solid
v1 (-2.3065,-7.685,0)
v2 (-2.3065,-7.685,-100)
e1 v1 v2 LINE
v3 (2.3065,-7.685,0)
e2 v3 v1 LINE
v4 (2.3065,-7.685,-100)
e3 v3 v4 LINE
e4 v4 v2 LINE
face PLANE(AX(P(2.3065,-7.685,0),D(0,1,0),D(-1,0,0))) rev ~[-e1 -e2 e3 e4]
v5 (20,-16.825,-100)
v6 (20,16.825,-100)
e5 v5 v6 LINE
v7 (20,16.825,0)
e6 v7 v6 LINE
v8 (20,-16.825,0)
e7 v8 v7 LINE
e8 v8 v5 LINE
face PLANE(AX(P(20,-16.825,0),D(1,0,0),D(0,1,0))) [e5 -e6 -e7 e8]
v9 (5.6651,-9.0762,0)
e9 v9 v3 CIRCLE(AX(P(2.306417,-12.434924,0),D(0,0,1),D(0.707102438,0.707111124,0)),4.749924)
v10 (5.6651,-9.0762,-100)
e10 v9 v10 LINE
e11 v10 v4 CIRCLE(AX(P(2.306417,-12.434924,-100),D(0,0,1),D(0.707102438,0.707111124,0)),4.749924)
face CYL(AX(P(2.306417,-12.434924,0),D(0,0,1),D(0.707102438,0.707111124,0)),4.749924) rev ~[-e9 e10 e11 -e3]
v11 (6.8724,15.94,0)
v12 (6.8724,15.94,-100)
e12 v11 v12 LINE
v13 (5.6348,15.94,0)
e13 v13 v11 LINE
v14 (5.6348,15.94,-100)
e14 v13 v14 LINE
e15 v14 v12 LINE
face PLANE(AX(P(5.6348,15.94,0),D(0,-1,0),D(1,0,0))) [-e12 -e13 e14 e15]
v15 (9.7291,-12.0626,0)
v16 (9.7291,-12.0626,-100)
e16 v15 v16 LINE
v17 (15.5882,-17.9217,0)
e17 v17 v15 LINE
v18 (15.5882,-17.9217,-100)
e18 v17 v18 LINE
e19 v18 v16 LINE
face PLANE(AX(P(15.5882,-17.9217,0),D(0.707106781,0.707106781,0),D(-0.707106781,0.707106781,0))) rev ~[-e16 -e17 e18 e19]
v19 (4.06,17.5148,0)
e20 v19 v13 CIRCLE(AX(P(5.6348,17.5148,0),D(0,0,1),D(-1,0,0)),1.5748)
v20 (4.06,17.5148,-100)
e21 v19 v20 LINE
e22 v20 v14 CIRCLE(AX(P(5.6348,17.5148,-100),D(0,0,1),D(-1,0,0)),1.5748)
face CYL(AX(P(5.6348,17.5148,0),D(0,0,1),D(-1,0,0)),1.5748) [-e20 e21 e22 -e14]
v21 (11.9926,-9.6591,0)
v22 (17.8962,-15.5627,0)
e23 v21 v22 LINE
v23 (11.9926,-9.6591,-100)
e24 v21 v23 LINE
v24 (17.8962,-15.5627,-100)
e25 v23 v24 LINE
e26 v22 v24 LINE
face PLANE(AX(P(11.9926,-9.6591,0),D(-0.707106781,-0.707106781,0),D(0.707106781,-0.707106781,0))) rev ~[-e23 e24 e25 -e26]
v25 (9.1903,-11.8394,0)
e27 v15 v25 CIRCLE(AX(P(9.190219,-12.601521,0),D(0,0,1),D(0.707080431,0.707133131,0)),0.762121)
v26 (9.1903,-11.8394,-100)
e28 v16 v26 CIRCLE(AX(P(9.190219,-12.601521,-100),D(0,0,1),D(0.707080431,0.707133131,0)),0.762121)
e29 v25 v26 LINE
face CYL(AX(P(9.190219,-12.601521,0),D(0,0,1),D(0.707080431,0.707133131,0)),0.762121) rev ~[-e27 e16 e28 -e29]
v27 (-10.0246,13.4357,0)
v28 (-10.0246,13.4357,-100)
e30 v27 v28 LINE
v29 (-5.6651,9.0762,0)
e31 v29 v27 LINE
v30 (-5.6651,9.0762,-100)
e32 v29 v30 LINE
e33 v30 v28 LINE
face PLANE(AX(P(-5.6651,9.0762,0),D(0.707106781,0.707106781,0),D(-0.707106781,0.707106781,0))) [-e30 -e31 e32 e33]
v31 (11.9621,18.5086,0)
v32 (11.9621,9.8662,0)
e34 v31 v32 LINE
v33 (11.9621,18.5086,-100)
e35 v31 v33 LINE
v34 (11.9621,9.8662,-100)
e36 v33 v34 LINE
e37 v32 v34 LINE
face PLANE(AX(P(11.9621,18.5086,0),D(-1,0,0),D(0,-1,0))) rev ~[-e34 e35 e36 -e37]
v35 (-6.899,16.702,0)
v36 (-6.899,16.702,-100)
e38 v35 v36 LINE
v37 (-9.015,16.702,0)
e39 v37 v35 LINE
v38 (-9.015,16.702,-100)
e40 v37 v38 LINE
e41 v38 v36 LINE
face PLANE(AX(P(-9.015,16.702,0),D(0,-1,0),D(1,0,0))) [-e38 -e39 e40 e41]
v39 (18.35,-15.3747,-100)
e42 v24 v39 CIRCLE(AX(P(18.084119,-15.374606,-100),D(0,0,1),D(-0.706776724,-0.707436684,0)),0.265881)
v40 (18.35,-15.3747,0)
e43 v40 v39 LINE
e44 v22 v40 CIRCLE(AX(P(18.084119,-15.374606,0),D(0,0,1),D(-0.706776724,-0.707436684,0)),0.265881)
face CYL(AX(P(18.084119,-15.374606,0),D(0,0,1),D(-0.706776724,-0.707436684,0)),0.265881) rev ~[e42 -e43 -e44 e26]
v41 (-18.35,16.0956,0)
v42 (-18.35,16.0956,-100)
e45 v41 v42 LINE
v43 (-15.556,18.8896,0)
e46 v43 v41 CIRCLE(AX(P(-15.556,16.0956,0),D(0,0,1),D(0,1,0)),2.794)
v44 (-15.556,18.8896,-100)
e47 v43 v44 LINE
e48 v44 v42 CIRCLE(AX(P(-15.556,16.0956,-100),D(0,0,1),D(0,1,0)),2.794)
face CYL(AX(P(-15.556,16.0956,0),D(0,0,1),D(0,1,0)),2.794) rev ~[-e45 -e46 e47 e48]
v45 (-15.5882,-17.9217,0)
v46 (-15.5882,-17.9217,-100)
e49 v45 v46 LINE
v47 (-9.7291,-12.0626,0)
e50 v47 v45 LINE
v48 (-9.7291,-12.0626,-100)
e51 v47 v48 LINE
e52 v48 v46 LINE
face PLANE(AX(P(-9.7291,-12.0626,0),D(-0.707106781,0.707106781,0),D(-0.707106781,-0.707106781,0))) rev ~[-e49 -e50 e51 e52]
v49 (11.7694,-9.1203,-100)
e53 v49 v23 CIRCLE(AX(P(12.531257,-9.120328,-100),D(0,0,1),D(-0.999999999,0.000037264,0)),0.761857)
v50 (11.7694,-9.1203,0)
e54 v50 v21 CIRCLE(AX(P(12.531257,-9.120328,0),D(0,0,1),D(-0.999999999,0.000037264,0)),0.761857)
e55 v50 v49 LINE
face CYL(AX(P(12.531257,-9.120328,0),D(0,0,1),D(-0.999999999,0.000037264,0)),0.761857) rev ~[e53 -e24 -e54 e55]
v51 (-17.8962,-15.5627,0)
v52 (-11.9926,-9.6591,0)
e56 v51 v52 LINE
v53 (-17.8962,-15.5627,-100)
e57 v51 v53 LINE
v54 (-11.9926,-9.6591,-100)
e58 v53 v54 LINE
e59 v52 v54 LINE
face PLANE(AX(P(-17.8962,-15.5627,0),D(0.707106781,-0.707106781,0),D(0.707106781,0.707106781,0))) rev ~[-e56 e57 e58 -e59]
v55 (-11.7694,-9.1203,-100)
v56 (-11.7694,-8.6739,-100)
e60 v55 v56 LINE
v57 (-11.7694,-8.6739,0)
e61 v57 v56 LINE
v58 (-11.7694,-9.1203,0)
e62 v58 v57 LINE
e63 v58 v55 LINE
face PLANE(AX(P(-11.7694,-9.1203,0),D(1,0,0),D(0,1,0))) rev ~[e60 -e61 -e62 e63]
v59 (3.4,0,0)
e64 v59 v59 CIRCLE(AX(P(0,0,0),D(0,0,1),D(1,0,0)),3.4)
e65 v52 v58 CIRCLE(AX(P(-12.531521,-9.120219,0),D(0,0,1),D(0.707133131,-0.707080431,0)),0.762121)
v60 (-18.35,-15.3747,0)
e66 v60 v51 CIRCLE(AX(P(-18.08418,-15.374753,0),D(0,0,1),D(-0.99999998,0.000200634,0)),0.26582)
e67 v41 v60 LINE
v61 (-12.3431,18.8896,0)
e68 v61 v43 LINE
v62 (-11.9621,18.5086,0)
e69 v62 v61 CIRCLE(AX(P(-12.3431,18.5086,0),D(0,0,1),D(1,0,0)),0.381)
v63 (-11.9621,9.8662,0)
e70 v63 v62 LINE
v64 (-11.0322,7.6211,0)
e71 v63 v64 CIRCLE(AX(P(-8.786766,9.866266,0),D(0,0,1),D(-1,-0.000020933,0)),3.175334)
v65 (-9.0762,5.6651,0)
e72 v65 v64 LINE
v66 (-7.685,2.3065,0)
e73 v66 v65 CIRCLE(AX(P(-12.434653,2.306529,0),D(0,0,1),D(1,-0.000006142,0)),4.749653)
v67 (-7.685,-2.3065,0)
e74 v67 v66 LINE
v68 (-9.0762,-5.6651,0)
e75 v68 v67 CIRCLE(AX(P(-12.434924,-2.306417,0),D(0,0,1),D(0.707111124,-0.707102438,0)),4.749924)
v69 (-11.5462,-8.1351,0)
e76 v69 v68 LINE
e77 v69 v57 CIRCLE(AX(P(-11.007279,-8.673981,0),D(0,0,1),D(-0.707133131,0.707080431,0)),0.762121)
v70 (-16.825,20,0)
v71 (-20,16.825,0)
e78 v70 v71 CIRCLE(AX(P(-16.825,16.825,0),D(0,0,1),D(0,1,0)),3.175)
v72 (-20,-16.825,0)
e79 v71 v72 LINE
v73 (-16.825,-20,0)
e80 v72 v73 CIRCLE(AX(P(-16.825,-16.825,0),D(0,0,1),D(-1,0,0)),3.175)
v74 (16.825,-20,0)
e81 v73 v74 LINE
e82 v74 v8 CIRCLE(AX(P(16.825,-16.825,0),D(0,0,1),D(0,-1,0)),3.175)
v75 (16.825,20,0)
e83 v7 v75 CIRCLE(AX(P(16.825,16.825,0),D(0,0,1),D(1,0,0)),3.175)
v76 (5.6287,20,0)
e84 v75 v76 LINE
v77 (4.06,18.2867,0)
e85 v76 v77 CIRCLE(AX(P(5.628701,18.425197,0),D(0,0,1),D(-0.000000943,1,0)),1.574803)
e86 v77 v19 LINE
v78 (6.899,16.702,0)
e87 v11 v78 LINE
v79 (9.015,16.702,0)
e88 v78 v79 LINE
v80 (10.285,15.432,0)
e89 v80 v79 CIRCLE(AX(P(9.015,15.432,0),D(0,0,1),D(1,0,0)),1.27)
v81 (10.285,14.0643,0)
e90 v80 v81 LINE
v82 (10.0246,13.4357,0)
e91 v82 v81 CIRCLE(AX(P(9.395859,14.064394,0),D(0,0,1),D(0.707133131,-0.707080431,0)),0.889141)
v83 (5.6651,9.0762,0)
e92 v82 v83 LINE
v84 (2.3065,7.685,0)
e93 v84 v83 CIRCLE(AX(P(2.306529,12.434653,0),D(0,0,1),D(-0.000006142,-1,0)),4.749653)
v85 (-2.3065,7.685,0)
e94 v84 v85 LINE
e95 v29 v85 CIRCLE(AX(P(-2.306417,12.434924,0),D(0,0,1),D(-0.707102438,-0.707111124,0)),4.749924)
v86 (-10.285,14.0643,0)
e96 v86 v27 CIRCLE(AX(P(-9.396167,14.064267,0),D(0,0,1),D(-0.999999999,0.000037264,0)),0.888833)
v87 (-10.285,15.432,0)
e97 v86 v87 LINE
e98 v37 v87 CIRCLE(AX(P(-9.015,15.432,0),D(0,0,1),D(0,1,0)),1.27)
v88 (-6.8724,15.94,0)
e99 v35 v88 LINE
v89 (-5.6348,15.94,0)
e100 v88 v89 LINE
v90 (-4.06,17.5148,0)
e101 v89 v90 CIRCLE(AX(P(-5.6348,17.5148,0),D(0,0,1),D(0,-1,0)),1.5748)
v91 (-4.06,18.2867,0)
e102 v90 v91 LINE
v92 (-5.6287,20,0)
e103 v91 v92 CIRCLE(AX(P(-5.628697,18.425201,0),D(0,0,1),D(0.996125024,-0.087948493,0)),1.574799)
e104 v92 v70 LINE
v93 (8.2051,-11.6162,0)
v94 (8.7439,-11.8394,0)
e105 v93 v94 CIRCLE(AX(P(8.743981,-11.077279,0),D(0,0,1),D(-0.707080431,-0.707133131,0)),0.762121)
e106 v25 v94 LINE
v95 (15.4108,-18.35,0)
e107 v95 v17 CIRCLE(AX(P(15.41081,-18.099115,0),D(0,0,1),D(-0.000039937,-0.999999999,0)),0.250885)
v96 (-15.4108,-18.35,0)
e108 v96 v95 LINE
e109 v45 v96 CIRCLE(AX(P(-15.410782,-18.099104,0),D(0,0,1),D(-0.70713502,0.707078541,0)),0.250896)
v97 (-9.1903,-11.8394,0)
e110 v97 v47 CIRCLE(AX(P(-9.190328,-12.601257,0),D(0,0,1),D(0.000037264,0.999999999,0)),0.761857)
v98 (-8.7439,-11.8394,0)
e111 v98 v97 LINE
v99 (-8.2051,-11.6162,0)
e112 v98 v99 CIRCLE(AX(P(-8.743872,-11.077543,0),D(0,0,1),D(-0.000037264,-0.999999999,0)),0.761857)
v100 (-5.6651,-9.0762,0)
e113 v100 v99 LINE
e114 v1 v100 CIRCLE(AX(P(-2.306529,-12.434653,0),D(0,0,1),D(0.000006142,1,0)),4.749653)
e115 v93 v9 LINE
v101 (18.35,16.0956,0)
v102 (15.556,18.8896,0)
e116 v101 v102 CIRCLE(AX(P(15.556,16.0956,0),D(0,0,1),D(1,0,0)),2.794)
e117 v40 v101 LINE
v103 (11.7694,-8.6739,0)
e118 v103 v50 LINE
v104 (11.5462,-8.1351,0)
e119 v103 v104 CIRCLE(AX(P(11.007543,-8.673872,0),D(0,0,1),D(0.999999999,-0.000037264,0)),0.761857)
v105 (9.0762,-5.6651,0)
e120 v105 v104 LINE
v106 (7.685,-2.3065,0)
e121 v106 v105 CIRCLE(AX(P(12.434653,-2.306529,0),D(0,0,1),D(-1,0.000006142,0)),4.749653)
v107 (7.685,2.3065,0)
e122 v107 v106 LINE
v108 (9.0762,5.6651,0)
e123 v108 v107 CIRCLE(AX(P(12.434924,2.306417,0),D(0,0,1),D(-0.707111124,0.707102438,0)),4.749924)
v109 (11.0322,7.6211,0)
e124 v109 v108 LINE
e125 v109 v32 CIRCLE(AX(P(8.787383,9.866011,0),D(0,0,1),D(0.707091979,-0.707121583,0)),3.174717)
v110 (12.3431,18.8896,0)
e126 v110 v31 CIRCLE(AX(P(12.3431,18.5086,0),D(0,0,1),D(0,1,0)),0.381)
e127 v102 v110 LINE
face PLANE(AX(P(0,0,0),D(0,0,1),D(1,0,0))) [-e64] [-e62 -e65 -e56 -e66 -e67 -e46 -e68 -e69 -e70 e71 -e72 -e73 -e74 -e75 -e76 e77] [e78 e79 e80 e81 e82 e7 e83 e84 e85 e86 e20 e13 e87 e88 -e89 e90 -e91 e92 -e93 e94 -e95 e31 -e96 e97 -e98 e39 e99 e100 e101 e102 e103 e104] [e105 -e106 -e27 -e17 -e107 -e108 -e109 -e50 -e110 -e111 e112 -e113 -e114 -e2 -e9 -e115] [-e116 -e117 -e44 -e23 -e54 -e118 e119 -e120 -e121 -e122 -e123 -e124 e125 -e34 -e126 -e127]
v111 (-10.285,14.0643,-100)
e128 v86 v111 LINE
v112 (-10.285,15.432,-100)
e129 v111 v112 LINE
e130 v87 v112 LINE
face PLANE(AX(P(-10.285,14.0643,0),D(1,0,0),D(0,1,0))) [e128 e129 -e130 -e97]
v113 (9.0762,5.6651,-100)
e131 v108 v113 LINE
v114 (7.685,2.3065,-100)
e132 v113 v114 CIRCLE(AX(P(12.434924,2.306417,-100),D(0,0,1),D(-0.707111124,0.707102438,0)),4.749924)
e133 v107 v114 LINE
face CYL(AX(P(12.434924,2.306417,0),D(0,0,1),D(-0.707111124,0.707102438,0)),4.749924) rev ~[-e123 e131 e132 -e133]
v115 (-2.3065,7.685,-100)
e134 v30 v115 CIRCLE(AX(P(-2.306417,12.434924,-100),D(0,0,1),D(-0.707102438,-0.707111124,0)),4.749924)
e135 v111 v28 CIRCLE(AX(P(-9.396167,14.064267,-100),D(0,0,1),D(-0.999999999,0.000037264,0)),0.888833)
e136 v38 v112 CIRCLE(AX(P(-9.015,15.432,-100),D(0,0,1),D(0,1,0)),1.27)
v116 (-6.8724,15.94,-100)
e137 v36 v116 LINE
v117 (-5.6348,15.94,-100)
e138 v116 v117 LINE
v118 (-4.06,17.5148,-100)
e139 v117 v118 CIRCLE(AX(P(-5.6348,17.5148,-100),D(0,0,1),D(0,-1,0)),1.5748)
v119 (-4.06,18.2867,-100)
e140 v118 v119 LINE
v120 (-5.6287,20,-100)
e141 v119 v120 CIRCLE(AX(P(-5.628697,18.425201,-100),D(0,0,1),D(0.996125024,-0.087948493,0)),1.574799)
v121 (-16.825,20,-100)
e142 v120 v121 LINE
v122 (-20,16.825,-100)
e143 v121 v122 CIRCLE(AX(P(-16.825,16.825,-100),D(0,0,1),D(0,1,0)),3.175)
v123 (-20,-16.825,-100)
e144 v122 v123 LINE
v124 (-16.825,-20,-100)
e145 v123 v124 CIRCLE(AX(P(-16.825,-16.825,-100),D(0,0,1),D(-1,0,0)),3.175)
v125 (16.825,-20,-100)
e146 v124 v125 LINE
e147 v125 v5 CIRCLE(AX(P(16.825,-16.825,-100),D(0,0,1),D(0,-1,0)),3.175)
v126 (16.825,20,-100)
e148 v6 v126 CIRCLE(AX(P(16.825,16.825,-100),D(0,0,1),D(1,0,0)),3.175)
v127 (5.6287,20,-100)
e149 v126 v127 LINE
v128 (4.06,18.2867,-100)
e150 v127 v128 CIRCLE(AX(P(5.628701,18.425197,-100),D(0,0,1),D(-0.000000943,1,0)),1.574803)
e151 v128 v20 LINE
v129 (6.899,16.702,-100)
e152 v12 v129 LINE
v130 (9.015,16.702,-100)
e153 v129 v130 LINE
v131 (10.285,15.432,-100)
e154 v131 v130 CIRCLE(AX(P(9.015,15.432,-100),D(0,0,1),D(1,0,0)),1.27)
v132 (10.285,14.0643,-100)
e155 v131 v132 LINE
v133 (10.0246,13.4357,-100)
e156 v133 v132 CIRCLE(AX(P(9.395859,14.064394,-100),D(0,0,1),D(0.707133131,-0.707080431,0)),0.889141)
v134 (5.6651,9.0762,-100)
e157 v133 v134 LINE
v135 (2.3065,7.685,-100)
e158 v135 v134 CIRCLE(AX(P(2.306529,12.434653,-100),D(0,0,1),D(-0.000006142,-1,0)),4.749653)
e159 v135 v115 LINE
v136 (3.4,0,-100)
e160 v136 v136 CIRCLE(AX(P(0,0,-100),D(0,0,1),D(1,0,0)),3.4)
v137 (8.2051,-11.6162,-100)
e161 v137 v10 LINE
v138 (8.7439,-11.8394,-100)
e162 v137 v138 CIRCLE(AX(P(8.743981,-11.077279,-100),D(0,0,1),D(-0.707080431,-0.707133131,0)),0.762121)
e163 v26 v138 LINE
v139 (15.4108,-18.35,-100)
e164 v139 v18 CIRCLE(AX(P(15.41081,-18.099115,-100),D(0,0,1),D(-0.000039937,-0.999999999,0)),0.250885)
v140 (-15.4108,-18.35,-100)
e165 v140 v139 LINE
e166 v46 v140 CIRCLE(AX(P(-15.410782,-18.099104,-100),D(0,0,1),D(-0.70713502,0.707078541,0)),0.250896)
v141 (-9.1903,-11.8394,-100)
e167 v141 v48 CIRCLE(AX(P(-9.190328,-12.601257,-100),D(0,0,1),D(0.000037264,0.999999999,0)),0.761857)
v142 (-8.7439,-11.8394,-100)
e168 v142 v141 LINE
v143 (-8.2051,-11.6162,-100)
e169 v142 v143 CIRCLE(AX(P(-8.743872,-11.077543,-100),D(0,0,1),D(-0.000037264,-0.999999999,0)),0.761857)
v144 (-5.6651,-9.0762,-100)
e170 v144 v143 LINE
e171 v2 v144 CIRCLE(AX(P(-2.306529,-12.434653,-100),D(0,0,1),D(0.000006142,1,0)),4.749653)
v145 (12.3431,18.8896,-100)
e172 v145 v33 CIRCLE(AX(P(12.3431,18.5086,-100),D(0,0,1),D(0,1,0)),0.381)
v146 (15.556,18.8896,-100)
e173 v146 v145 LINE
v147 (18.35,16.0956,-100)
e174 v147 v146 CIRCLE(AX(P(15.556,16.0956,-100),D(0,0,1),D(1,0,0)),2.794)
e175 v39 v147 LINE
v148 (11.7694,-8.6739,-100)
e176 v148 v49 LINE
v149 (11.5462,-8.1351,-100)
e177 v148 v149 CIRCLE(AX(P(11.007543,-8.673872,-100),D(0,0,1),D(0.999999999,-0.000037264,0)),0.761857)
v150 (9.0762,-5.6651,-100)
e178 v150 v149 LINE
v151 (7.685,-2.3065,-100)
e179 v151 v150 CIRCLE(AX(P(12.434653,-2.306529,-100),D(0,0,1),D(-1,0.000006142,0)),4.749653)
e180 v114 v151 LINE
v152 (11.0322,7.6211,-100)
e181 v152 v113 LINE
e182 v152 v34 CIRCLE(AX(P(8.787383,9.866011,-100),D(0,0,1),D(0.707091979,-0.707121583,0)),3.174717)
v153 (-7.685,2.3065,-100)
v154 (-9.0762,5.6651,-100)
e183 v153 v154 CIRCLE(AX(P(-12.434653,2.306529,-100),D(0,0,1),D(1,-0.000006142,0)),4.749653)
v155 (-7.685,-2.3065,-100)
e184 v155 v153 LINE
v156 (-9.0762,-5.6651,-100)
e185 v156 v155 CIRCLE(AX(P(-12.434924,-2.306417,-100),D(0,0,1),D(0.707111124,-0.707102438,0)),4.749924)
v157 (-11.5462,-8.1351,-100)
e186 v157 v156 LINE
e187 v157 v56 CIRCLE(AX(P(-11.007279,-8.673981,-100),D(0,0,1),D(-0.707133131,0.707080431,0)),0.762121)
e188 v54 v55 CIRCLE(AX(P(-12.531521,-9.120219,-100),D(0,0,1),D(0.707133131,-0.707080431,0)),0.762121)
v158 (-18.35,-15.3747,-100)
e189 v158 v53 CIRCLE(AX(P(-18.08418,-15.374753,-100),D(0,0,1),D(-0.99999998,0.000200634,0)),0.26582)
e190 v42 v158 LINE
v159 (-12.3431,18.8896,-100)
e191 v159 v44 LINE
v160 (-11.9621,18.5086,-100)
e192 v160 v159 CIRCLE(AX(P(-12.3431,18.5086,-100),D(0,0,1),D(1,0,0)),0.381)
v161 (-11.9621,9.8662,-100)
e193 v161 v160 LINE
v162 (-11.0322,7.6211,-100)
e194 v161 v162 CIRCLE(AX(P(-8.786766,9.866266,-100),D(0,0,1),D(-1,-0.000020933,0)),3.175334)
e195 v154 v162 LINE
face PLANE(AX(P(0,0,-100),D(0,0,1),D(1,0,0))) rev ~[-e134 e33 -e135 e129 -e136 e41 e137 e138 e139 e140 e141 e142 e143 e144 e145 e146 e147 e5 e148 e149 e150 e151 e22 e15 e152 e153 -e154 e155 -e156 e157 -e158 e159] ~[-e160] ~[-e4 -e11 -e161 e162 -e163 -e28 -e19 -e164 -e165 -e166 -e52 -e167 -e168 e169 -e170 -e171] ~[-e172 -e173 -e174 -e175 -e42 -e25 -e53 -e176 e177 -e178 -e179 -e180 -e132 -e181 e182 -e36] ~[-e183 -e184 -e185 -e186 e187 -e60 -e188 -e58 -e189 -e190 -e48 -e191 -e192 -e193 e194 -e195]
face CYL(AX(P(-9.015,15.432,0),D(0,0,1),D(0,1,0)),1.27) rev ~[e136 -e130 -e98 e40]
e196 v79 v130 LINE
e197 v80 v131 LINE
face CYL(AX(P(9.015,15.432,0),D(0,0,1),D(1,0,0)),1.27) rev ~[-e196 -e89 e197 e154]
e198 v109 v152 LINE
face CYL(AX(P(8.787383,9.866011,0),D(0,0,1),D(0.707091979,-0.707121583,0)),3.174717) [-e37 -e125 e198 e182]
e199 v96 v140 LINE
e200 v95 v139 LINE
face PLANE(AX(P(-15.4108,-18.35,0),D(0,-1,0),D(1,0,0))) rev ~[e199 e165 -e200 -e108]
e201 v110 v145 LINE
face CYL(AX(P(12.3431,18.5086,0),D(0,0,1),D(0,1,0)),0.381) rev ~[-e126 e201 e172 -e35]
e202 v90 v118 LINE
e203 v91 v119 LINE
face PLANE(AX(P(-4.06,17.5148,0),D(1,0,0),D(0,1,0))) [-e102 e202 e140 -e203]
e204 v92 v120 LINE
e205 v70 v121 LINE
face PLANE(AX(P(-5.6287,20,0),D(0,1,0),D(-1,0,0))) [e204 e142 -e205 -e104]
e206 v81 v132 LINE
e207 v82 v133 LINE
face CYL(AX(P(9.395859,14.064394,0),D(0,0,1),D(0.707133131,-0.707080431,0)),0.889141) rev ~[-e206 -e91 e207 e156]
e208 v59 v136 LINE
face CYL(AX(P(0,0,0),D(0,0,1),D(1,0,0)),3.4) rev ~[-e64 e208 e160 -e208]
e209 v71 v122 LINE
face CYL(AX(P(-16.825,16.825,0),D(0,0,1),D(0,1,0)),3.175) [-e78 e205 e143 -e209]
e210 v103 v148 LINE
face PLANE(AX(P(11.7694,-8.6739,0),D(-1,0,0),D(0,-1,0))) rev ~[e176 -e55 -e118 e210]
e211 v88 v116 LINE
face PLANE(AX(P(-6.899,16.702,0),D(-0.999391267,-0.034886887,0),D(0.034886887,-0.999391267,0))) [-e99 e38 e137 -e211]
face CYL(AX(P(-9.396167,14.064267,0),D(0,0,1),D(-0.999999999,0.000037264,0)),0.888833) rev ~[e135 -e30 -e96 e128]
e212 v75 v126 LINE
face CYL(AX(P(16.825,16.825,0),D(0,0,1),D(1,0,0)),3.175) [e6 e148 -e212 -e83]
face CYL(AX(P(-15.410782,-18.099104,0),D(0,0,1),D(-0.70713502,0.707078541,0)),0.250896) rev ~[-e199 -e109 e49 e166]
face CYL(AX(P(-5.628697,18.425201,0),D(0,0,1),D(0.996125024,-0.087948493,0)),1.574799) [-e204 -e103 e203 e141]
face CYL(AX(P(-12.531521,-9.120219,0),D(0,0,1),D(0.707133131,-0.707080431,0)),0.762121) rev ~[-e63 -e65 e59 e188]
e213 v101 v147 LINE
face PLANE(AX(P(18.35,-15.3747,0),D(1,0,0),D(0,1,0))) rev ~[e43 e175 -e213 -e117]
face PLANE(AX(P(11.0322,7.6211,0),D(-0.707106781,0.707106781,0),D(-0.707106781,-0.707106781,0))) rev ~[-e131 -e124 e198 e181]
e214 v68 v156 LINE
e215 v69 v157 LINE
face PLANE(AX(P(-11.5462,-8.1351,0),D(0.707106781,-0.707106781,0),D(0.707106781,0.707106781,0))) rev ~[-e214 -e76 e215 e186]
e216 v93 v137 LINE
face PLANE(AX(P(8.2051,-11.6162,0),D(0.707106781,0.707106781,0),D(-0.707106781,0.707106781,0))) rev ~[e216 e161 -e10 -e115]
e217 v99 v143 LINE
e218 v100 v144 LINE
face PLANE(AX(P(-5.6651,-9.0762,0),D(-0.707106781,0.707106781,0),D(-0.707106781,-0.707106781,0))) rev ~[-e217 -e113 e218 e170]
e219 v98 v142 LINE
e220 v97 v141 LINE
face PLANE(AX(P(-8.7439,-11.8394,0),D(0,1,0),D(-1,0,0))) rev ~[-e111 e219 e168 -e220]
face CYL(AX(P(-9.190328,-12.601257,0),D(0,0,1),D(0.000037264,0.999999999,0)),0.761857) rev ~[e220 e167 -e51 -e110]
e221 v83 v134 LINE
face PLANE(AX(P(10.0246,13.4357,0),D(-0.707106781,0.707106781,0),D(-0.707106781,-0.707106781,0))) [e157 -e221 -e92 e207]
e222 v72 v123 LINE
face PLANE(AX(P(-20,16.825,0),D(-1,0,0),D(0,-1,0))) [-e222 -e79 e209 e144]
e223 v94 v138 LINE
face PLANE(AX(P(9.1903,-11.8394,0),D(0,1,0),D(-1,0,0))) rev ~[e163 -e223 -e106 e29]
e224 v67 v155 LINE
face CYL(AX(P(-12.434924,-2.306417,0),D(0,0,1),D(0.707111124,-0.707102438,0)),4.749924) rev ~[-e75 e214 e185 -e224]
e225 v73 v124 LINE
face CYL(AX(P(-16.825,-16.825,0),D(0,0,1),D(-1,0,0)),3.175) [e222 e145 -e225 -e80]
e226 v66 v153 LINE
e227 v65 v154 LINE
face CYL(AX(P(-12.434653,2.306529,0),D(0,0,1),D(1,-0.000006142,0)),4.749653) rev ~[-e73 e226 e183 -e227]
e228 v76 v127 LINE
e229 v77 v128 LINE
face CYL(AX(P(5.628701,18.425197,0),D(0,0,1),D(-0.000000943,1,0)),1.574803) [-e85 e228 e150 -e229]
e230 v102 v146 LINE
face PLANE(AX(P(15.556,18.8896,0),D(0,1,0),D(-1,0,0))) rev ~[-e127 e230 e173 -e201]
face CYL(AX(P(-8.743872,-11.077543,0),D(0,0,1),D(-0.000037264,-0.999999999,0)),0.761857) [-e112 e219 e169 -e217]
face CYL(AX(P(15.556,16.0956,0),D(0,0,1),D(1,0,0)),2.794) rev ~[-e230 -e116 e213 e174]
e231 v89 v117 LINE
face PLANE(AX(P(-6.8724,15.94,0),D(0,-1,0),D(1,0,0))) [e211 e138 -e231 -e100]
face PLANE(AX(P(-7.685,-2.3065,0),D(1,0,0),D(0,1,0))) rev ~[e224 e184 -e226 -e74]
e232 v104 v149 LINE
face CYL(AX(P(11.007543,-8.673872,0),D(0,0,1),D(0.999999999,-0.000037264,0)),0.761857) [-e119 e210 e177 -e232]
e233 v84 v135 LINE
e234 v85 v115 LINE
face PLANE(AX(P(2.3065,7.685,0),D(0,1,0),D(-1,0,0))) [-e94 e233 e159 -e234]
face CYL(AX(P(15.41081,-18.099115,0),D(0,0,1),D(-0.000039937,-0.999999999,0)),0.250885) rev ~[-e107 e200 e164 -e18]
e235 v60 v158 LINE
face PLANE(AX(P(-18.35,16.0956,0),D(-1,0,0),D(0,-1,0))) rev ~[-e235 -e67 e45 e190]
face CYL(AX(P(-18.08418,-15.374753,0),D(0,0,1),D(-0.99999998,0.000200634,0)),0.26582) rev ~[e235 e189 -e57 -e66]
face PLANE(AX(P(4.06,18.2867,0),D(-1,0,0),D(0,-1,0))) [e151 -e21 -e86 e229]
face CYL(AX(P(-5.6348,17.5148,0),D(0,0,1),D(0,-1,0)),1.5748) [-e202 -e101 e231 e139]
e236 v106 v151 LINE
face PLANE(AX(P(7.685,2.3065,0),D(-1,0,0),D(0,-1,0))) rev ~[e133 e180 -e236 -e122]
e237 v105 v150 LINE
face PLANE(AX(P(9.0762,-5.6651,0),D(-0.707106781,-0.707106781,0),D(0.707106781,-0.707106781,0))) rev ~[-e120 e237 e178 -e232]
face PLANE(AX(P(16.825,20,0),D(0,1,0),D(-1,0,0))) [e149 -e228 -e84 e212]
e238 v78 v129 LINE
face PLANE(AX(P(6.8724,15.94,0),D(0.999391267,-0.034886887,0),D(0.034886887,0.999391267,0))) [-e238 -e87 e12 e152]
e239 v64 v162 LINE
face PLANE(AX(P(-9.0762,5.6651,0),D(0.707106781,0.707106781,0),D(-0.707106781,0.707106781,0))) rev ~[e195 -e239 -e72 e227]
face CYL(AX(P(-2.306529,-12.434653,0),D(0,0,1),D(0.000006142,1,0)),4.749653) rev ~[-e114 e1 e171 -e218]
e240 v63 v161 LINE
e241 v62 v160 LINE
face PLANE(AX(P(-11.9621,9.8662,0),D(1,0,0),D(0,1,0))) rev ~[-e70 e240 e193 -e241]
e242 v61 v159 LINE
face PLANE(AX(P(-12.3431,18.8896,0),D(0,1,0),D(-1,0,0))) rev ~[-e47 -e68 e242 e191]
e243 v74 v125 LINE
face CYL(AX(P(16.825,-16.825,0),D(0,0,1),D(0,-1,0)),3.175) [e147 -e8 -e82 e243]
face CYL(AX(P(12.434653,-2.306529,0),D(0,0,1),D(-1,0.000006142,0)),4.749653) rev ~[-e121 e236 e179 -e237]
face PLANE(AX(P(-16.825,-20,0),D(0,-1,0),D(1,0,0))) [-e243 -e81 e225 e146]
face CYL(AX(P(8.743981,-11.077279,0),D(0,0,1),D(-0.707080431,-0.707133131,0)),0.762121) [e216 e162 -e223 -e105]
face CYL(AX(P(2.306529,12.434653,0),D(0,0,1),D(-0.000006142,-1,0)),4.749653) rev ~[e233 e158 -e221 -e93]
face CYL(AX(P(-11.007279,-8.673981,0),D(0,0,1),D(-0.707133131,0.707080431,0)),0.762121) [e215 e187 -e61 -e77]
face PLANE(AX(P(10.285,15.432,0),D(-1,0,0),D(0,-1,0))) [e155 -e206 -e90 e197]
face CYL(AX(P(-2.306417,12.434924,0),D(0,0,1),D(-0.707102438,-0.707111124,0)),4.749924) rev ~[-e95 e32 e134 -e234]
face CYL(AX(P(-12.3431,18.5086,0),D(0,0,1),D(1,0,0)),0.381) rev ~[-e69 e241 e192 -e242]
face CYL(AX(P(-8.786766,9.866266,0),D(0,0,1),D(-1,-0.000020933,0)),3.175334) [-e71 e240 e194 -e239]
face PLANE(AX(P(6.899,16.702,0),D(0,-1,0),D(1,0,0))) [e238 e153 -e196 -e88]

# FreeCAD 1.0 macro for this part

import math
import FreeCAD as App
import Part
import Sketcher
Q = App.Units.Quantity

doc = App.newDocument("Part")
body = doc.addObject("PartDesign::Body", "Body")

# Sketch on XY plane
sketch1 = body.newObject("Sketcher::SketchObject", "Sketch")
sketch1.AttachmentSupport = (doc.getObject("XY_Plane"), [""])
sketch1.MapMode = "FlatFace"
sketch1.addGeometry([
    Part.LineSegment(App.Vector(20, -16.825, 0), App.Vector(20, 16.825, 0)),  # 0
    Part.ArcOfCircle(Part.Circle(App.Vector(16.825, 16.825, 0), App.Vector(0, 0, 1), 3.175), math.radians(0), math.radians(90)),  # 1
    Part.LineSegment(App.Vector(16.825, 20, 0), App.Vector(5.6287, 20, 0)),  # 2
    Part.ArcOfCircle(Part.Circle(App.Vector(5.6287, 18.4252, 0), App.Vector(0, 0, 1), 1.5748), math.radians(90), math.radians(185.045542)),  # 3
    Part.LineSegment(App.Vector(4.06, 18.2867, 0), App.Vector(4.06, 17.5148, 0)),  # 4
    Part.ArcOfCircle(Part.Circle(App.Vector(5.6348, 17.5148, 0), App.Vector(0, 0, 1), 1.5748), math.radians(180), math.radians(270)),  # 5
    Part.LineSegment(App.Vector(5.6348, 15.94, 0), App.Vector(6.8724, 15.94, 0)),  # 6
    Part.LineSegment(App.Vector(6.8724, 15.94, 0), App.Vector(6.899, 16.702, 0)),  # 7
    Part.LineSegment(App.Vector(6.899, 16.702, 0), App.Vector(9.015, 16.702, 0)),  # 8
    Part.ArcOfCircle(Part.Circle(App.Vector(9.015, 15.432, 0), App.Vector(0, 0, 1), 1.27), math.radians(0), math.radians(90)),  # 9
    Part.LineSegment(App.Vector(10.285, 15.432, 0), App.Vector(10.285, 14.0643, 0)),  # 10
    Part.ArcOfCircle(Part.Circle(App.Vector(9.396, 14.0643, 0), App.Vector(0, 0, 1), 0.888975), math.radians(-45), math.radians(0)),  # 11
    Part.LineSegment(App.Vector(10.0246, 13.4357, 0), App.Vector(5.6651, 9.0762, 0)),  # 12
    Part.ArcOfCircle(Part.Circle(App.Vector(2.3065, 12.4348, 0), App.Vector(0, 0, 1), 4.7498), math.radians(-90), math.radians(-45)),  # 13
    Part.LineSegment(App.Vector(2.3065, 7.685, 0), App.Vector(-2.3065, 7.685, 0)),  # 14
    Part.ArcOfCircle(Part.Circle(App.Vector(-2.3065, 12.4348, 0), App.Vector(0, 0, 1), 4.749778), math.radians(-135), math.radians(-90)),  # 15
    Part.LineSegment(App.Vector(-5.6651, 9.0762, 0), App.Vector(-10.0246, 13.4357, 0)),  # 16
    Part.ArcOfCircle(Part.Circle(App.Vector(-9.396, 14.0643, 0), App.Vector(0, 0, 1), 0.889), math.radians(180), math.radians(225)),  # 17
    Part.LineSegment(App.Vector(-10.285, 14.0643, 0), App.Vector(-10.285, 15.432, 0)),  # 18
    Part.ArcOfCircle(Part.Circle(App.Vector(-9.015, 15.432, 0), App.Vector(0, 0, 1), 1.27), math.radians(90), math.radians(180)),  # 19
    Part.LineSegment(App.Vector(-9.015, 16.702, 0), App.Vector(-6.899, 16.702, 0)),  # 20
    Part.LineSegment(App.Vector(-6.899, 16.702, 0), App.Vector(-6.8724, 15.94, 0)),  # 21
    Part.LineSegment(App.Vector(-6.8724, 15.94, 0), App.Vector(-5.6348, 15.94, 0)),  # 22
    Part.ArcOfCircle(Part.Circle(App.Vector(-5.6348, 17.5148, 0), App.Vector(0, 0, 1), 1.5748), math.radians(-90), math.radians(0)),  # 23
    Part.LineSegment(App.Vector(-4.06, 17.5148, 0), App.Vector(-4.06, 18.2867, 0)),  # 24
    Part.ArcOfCircle(Part.Circle(App.Vector(-5.6287, 18.4252, 0), App.Vector(0, 0, 1), 1.574802), math.radians(-5.045542), math.radians(90)),  # 25
    Part.LineSegment(App.Vector(-5.6287, 20, 0), App.Vector(-16.825, 20, 0)),  # 26
    Part.ArcOfCircle(Part.Circle(App.Vector(-16.825, 16.825, 0), App.Vector(0, 0, 1), 3.175), math.radians(90), math.radians(180)),  # 27
    Part.LineSegment(App.Vector(-20, 16.825, 0), App.Vector(-20, -16.825, 0)),  # 28
    Part.ArcOfCircle(Part.Circle(App.Vector(-16.825, -16.825, 0), App.Vector(0, 0, 1), 3.175), math.radians(180), math.radians(270)),  # 29
    Part.LineSegment(App.Vector(-16.825, -20, 0), App.Vector(16.825, -20, 0)),  # 30
    Part.ArcOfCircle(Part.Circle(App.Vector(16.825, -16.825, 0), App.Vector(0, 0, 1), 3.175), math.radians(-90), math.radians(0)),  # 31
    Part.ArcOfCircle(Part.Circle(App.Vector(15.4108, -18.0991, 0), App.Vector(0, 0, 1), 0.2509), math.radians(-90), math.radians(45)),  # 32
    Part.LineSegment(App.Vector(15.4108, -18.35, 0), App.Vector(-15.4108, -18.35, 0)),  # 33
    Part.ArcOfCircle(Part.Circle(App.Vector(-15.4108, -18.0991, 0), App.Vector(0, 0, 1), 0.250881), math.radians(135), math.radians(270)),  # 34
    Part.LineSegment(App.Vector(-15.5882, -17.9217, 0), App.Vector(-9.7291, -12.0626, 0)),  # 35
    Part.ArcOfCircle(Part.Circle(App.Vector(-9.1903, -12.6014, 0), App.Vector(0, 0, 1), 0.762), math.radians(90), math.radians(135)),  # 36
    Part.LineSegment(App.Vector(-9.1903, -11.8394, 0), App.Vector(-8.7439, -11.8394, 0)),  # 37
    Part.ArcOfCircle(Part.Circle(App.Vector(-8.7439, -11.0774, 0), App.Vector(0, 0, 1), 0.762), math.radians(-90), math.radians(-45)),  # 38
    Part.LineSegment(App.Vector(-8.2051, -11.6162, 0), App.Vector(-5.6651, -9.0762, 0)),  # 39
    Part.ArcOfCircle(Part.Circle(App.Vector(-2.3065, -12.4348, 0), App.Vector(0, 0, 1), 4.7498), math.radians(90), math.radians(135)),  # 40
    Part.LineSegment(App.Vector(-2.3065, -7.685, 0), App.Vector(2.3065, -7.685, 0)),  # 41
    Part.ArcOfCircle(Part.Circle(App.Vector(2.3065, -12.4348, 0), App.Vector(0, 0, 1), 4.749778), math.radians(45), math.radians(90)),  # 42
    Part.LineSegment(App.Vector(5.6651, -9.0762, 0), App.Vector(8.2051, -11.6162, 0)),  # 43
    Part.ArcOfCircle(Part.Circle(App.Vector(8.7439, -11.0774, 0), App.Vector(0, 0, 1), 0.761978), math.radians(-135), math.radians(-90)),  # 44
    Part.LineSegment(App.Vector(8.7439, -11.8394, 0), App.Vector(9.1903, -11.8394, 0)),  # 45
    Part.ArcOfCircle(Part.Circle(App.Vector(9.1903, -12.6014, 0), App.Vector(0, 0, 1), 0.761978), math.radians(45), math.radians(90)),  # 46
    Part.LineSegment(App.Vector(9.7291, -12.0626, 0), App.Vector(15.5882, -17.9217, 0)),  # 47
    Part.Circle(App.Vector(0, 0, 0), App.Vector(0, 0, 1), 3.4),  # 48
    Part.ArcOfCircle(Part.Circle(App.Vector(-12.4348, -2.3065, 0), App.Vector(0, 0, 1), 4.749778), math.radians(-45), math.radians(0)),  # 49
    Part.LineSegment(App.Vector(-9.0762, -5.6651, 0), App.Vector(-11.5462, -8.1351, 0)),  # 50
    Part.ArcOfCircle(Part.Circle(App.Vector(-11.0074, -8.6739, 0), App.Vector(0, 0, 1), 0.761978), math.radians(135), math.radians(180)),  # 51
    Part.LineSegment(App.Vector(-11.7694, -8.6739, 0), App.Vector(-11.7694, -9.1203, 0)),  # 52
    Part.ArcOfCircle(Part.Circle(App.Vector(-12.5314, -9.1203, 0), App.Vector(0, 0, 1), 0.761978), math.radians(-45), math.radians(0)),  # 53
    Part.LineSegment(App.Vector(-11.9926, -9.6591, 0), App.Vector(-17.8962, -15.5627, 0)),  # 54
    Part.ArcOfCircle(Part.Circle(App.Vector(-18.0841, -15.3747, 0), App.Vector(0, 0, 1), 0.2659), math.radians(180), math.radians(314.984758)),  # 55
    Part.LineSegment(App.Vector(-18.35, -15.3747, 0), App.Vector(-18.35, 16.0956, 0)),  # 56
    Part.ArcOfCircle(Part.Circle(App.Vector(-15.556, 16.0956, 0), App.Vector(0, 0, 1), 2.794), math.radians(90), math.radians(180)),  # 57
    Part.LineSegment(App.Vector(-15.556, 18.8896, 0), App.Vector(-12.3431, 18.8896, 0)),  # 58
    Part.ArcOfCircle(Part.Circle(App.Vector(-12.3431, 18.5086, 0), App.Vector(0, 0, 1), 0.381), math.radians(0), math.radians(90)),  # 59
    Part.LineSegment(App.Vector(-11.9621, 18.5086, 0), App.Vector(-11.9621, 9.8662, 0)),  # 60
    Part.ArcOfCircle(Part.Circle(App.Vector(-8.7871, 9.8662, 0), App.Vector(0, 0, 1), 3.175), math.radians(180), math.radians(225)),  # 61
    Part.LineSegment(App.Vector(-11.0322, 7.6211, 0), App.Vector(-9.0762, 5.6651, 0)),  # 62
    Part.ArcOfCircle(Part.Circle(App.Vector(-12.4348, 2.3065, 0), App.Vector(0, 0, 1), 4.7498), math.radians(0), math.radians(45)),  # 63
    Part.LineSegment(App.Vector(-7.685, 2.3065, 0), App.Vector(-7.685, -2.3065, 0)),  # 64
    Part.LineSegment(App.Vector(11.7694, -9.1203, 0), App.Vector(11.7694, -8.6739, 0)),  # 65
    Part.ArcOfCircle(Part.Circle(App.Vector(11.0074, -8.6739, 0), App.Vector(0, 0, 1), 0.762), math.radians(0), math.radians(45)),  # 66
    Part.LineSegment(App.Vector(11.5462, -8.1351, 0), App.Vector(9.0762, -5.6651, 0)),  # 67
    Part.ArcOfCircle(Part.Circle(App.Vector(12.4348, -2.3065, 0), App.Vector(0, 0, 1), 4.7498), math.radians(180), math.radians(225)),  # 68
    Part.LineSegment(App.Vector(7.685, -2.3065, 0), App.Vector(7.685, 2.3065, 0)),  # 69
    Part.ArcOfCircle(Part.Circle(App.Vector(12.4348, 2.3065, 0), App.Vector(0, 0, 1), 4.749778), math.radians(135), math.radians(180)),  # 70
    Part.LineSegment(App.Vector(9.0762, 5.6651, 0), App.Vector(11.0322, 7.6211, 0)),  # 71
    Part.ArcOfCircle(Part.Circle(App.Vector(8.7871, 9.8662, 0), App.Vector(0, 0, 1), 3.175051), math.radians(-45), math.radians(0)),  # 72
    Part.LineSegment(App.Vector(11.9621, 9.8662, 0), App.Vector(11.9621, 18.5086, 0)),  # 73
    Part.ArcOfCircle(Part.Circle(App.Vector(12.3431, 18.5086, 0), App.Vector(0, 0, 1), 0.381), math.radians(90), math.radians(180)),  # 74
    Part.LineSegment(App.Vector(12.3431, 18.8896, 0), App.Vector(15.556, 18.8896, 0)),  # 75
    Part.ArcOfCircle(Part.Circle(App.Vector(15.556, 16.0956, 0), App.Vector(0, 0, 1), 2.794), math.radians(0), math.radians(90)),  # 76
    Part.LineSegment(App.Vector(18.35, 16.0956, 0), App.Vector(18.35, -15.3747, 0)),  # 77
    Part.ArcOfCircle(Part.Circle(App.Vector(18.0841, -15.3747, 0), App.Vector(0, 0, 1), 0.265801), math.radians(-134.984758), math.radians(0)),  # 78
    Part.LineSegment(App.Vector(17.8962, -15.5627, 0), App.Vector(11.9926, -9.6591, 0)),  # 79
    Part.ArcOfCircle(Part.Circle(App.Vector(12.5314, -9.1203, 0), App.Vector(0, 0, 1), 0.762), math.radians(180), math.radians(225)),  # 80
], False)
sketch1.addConstraint([
    Sketcher.Constraint("Coincident", 0, 2, 1, 1),
    Sketcher.Constraint("Coincident", 1, 2, 2, 1),
    Sketcher.Constraint("Coincident", 2, 2, 3, 1),
    Sketcher.Constraint("Coincident", 3, 2, 4, 1),
    Sketcher.Constraint("Coincident", 4, 2, 5, 1),
    Sketcher.Constraint("Coincident", 5, 2, 6, 1),
    Sketcher.Constraint("Coincident", 6, 2, 7, 1),
    Sketcher.Constraint("Coincident", 7, 2, 8, 1),
    Sketcher.Constraint("Coincident", 8, 2, 9, 2),
    Sketcher.Constraint("Coincident", 9, 1, 10, 1),
    Sketcher.Constraint("Coincident", 10, 2, 11, 2),
    Sketcher.Constraint("Coincident", 11, 1, 12, 1),
    Sketcher.Constraint("Coincident", 12, 2, 13, 2),
    Sketcher.Constraint("Coincident", 13, 1, 14, 1),
    Sketcher.Constraint("Coincident", 14, 2, 15, 2),
    Sketcher.Constraint("Coincident", 15, 1, 16, 1),
    Sketcher.Constraint("Coincident", 16, 2, 17, 2),
    Sketcher.Constraint("Coincident", 17, 1, 18, 1),
    Sketcher.Constraint("Coincident", 18, 2, 19, 2),
    Sketcher.Constraint("Coincident", 19, 1, 20, 1),
    Sketcher.Constraint("Coincident", 20, 2, 21, 1),
    Sketcher.Constraint("Coincident", 21, 2, 22, 1),
    Sketcher.Constraint("Coincident", 22, 2, 23, 1),
    Sketcher.Constraint("Coincident", 23, 2, 24, 1),
    Sketcher.Constraint("Coincident", 24, 2, 25, 1),
    Sketcher.Constraint("Coincident", 25, 2, 26, 1),
    Sketcher.Constraint("Coincident", 26, 2, 27, 1),
    Sketcher.Constraint("Coincident", 27, 2, 28, 1),
    Sketcher.Constraint("Coincident", 28, 2, 29, 1),
    Sketcher.Constraint("Coincident", 29, 2, 30, 1),
    Sketcher.Constraint("Coincident", 30, 2, 31, 1),
    Sketcher.Constraint("Coincident", 31, 2, 0, 1),
    Sketcher.Constraint("Coincident", 32, 1, 33, 1),
    Sketcher.Constraint("Coincident", 33, 2, 34, 2),
    Sketcher.Constraint("Coincident", 34, 1, 35, 1),
    Sketcher.Constraint("Coincident", 35, 2, 36, 2),
    Sketcher.Constraint("Coincident", 36, 1, 37, 1),
    Sketcher.Constraint("Coincident", 37, 2, 38, 1),
    Sketcher.Constraint("Coincident", 38, 2, 39, 1),
    Sketcher.Constraint("Coincident", 39, 2, 40, 2),
    Sketcher.Constraint("Coincident", 40, 1, 41, 1),
    Sketcher.Constraint("Coincident", 41, 2, 42, 2),
    Sketcher.Constraint("Coincident", 42, 1, 43, 1),
    Sketcher.Constraint("Coincident", 43, 2, 44, 1),
    Sketcher.Constraint("Coincident", 44, 2, 45, 1),
    Sketcher.Constraint("Coincident", 45, 2, 46, 2),
    Sketcher.Constraint("Coincident", 46, 1, 47, 1),
    Sketcher.Constraint("Coincident", 47, 2, 32, 2),
    Sketcher.Constraint("Coincident", 49, 1, 50, 1),
    Sketcher.Constraint("Coincident", 50, 2, 51, 1),
    Sketcher.Constraint("Coincident", 51, 2, 52, 1),
    Sketcher.Constraint("Coincident", 52, 2, 53, 2),
    Sketcher.Constraint("Coincident", 53, 1, 54, 1),
    Sketcher.Constraint("Coincident", 54, 2, 55, 2),
    Sketcher.Constraint("Coincident", 55, 1, 56, 1),
    Sketcher.Constraint("Coincident", 56, 2, 57, 2),
    Sketcher.Constraint("Coincident", 57, 1, 58, 1),
    Sketcher.Constraint("Coincident", 58, 2, 59, 2),
    Sketcher.Constraint("Coincident", 59, 1, 60, 1),
    Sketcher.Constraint("Coincident", 60, 2, 61, 1),
    Sketcher.Constraint("Coincident", 61, 2, 62, 1),
    Sketcher.Constraint("Coincident", 62, 2, 63, 2),
    Sketcher.Constraint("Coincident", 63, 1, 64, 1),
    Sketcher.Constraint("Coincident", 64, 2, 49, 2),
    Sketcher.Constraint("Coincident", 65, 2, 66, 1),
    Sketcher.Constraint("Coincident", 66, 2, 67, 1),
    Sketcher.Constraint("Coincident", 67, 2, 68, 2),
    Sketcher.Constraint("Coincident", 68, 1, 69, 1),
    Sketcher.Constraint("Coincident", 69, 2, 70, 2),
    Sketcher.Constraint("Coincident", 70, 1, 71, 1),
    Sketcher.Constraint("Coincident", 71, 2, 72, 1),
    Sketcher.Constraint("Coincident", 72, 2, 73, 1),
    Sketcher.Constraint("Coincident", 73, 2, 74, 2),
    Sketcher.Constraint("Coincident", 74, 1, 75, 1),
    Sketcher.Constraint("Coincident", 75, 2, 76, 2),
    Sketcher.Constraint("Coincident", 76, 1, 77, 1),
    Sketcher.Constraint("Coincident", 77, 2, 78, 2),
    Sketcher.Constraint("Coincident", 78, 1, 79, 1),
    Sketcher.Constraint("Coincident", 79, 2, 80, 2),
    Sketcher.Constraint("Coincident", 80, 1, 65, 1),
    Sketcher.Constraint("Vertical", 0),
    Sketcher.Constraint("Horizontal", 2),
    Sketcher.Constraint("Vertical", 4),
    Sketcher.Constraint("Horizontal", 6),
    Sketcher.Constraint("Horizontal", 8),
    Sketcher.Constraint("Vertical", 10),
    Sketcher.Constraint("Horizontal", 14),
    Sketcher.Constraint("Vertical", 18),
    Sketcher.Constraint("Horizontal", 20),
    Sketcher.Constraint("Horizontal", 22),
    Sketcher.Constraint("Vertical", 24),
    Sketcher.Constraint("Horizontal", 26),
    Sketcher.Constraint("Vertical", 28),
    Sketcher.Constraint("Horizontal", 30),
    Sketcher.Constraint("Horizontal", 33),
    Sketcher.Constraint("Horizontal", 37),
    Sketcher.Constraint("Horizontal", 41),
    Sketcher.Constraint("Horizontal", 45),
    Sketcher.Constraint("Vertical", 52),
    Sketcher.Constraint("Vertical", 56),
    Sketcher.Constraint("Horizontal", 58),
    Sketcher.Constraint("Vertical", 60),
    Sketcher.Constraint("Vertical", 64),
    Sketcher.Constraint("Vertical", 65),
    Sketcher.Constraint("Vertical", 69),
    Sketcher.Constraint("Vertical", 73),
    Sketcher.Constraint("Horizontal", 75),
    Sketcher.Constraint("Vertical", 77),
    Sketcher.Constraint("Coincident", 48, 3, -1, 1),
    Sketcher.Constraint("Radius", 9, Q("0.05 in")),
    Sketcher.Constraint("Radius", 19, Q("0.05 in")),
    Sketcher.Constraint("Radius", 36, Q("0.03 in")),
    Sketcher.Constraint("Radius", 38, Q("0.03 in")),
    Sketcher.Constraint("Radius", 44, Q("0.03 in")),
    Sketcher.Constraint("Radius", 46, Q("0.03 in")),
    Sketcher.Constraint("Radius", 51, Q("0.03 in")),
    Sketcher.Constraint("Radius", 53, Q("0.03 in")),
    Sketcher.Constraint("Radius", 57, Q("0.11 in")),
    Sketcher.Constraint("Radius", 66, Q("0.03 in")),
    Sketcher.Constraint("Radius", 76, Q("0.11 in")),
    Sketcher.Constraint("Radius", 80, Q("0.03 in")),
    Sketcher.Constraint("Radius", 1, Q("0.125 in")),
    Sketcher.Constraint("Radius", 3, Q("0.062 in")),
    Sketcher.Constraint("Radius", 5, Q("0.062 in")),
    Sketcher.Constraint("Radius", 11, Q("0.035 in")),
    Sketcher.Constraint("Radius", 13, Q("0.187 in")),
    Sketcher.Constraint("Radius", 15, Q("0.187 in")),
    Sketcher.Constraint("Radius", 17, Q("0.035 in")),
    Sketcher.Constraint("Radius", 23, Q("0.062 in")),
    Sketcher.Constraint("Radius", 25, Q("0.062 in")),
    Sketcher.Constraint("Radius", 27, Q("0.125 in")),
    Sketcher.Constraint("Radius", 29, Q("0.125 in")),
    Sketcher.Constraint("Radius", 31, Q("0.125 in")),
    Sketcher.Constraint("Radius", 40, Q("0.187 in")),
    Sketcher.Constraint("Radius", 42, Q("0.187 in")),
    Sketcher.Constraint("Radius", 49, Q("0.187 in")),
    Sketcher.Constraint("Radius", 59, Q("0.015 in")),
    Sketcher.Constraint("Radius", 61, Q("0.125 in")),
    Sketcher.Constraint("Radius", 63, Q("0.187 in")),
    Sketcher.Constraint("Radius", 68, Q("0.187 in")),
    Sketcher.Constraint("Radius", 70, Q("0.187 in")),
    Sketcher.Constraint("Radius", 72, Q("0.125 in")),
    Sketcher.Constraint("Radius", 74, Q("0.015 in")),
    Sketcher.Constraint("Diameter", 48, Q("6.8 mm")),
    Sketcher.Constraint("DistanceY", 56, 1, 56, 2, Q("1.239 in")),
    Sketcher.Constraint("DistanceY", 77, 2, 77, 1, Q("1.239 in")),
    Sketcher.Constraint("Radius", 32, Q("0.251 mm")),
    Sketcher.Constraint("Radius", 34, Q("0.251 mm")),
    Sketcher.Constraint("Radius", 55, Q("0.266 mm")),
    Sketcher.Constraint("Radius", 78, Q("0.2658 mm")),
    Sketcher.Constraint("DistanceX", 2, 2, 2, 1, Q("0.4408 in")),
    Sketcher.Constraint("DistanceX", 8, 1, 8, 2, Q("0.0833 in")),
    Sketcher.Constraint("DistanceX", 20, 1, 20, 2, Q("0.0833 in")),
    Sketcher.Constraint("DistanceX", 26, 2, 26, 1, Q("0.4408 in")),
    Sketcher.Constraint("DistanceX", 30, 1, 30, 2, Q("1.3248 in")),
    Sketcher.Constraint("DistanceX", 58, 1, 58, 2, Q("0.1265 in")),
    Sketcher.Constraint("DistanceX", 75, 1, 75, 2, Q("0.1265 in")),
    Sketcher.Constraint("DistanceY", 0, 1, 0, 2, Q("1.3248 in")),
    Sketcher.Constraint("DistanceY", 4, 2, 4, 1, Q("0.0304 in")),
    Sketcher.Constraint("DistanceY", 24, 1, 24, 2, Q("0.0304 in")),
    Sketcher.Constraint("DistanceY", 28, 2, 28, 1, Q("1.3248 in")),
    Sketcher.Constraint("Distance", 54, Q("0.3287 in")),
    Sketcher.Constraint("Distance", 62, Q("0.1089 in")),
    Sketcher.Constraint("Distance", 71, Q("0.1089 in")),
    Sketcher.Constraint("Distance", 79, Q("0.3287 in")),
    Sketcher.Constraint("DistanceX", 6, 1, 6, 2, Q("1.2376 mm")),
    Sketcher.Constraint("DistanceX", 14, 2, 14, 1, Q("4.613 mm")),
    Sketcher.Constraint("DistanceX", 22, 1, 22, 2, Q("1.2376 mm")),
    Sketcher.Constraint("DistanceX", 33, 2, 33, 1, Q("30.8216 mm")),
    Sketcher.Constraint("DistanceX", 37, 1, 37, 2, Q("0.4464 mm")),
    Sketcher.Constraint("DistanceX", 41, 1, 41, 2, Q("4.613 mm")),
    Sketcher.Constraint("DistanceX", 45, 1, 45, 2, Q("0.4464 mm")),
    Sketcher.Constraint("DistanceY", 10, 2, 10, 1, Q("1.3677 mm")),
    Sketcher.Constraint("DistanceY", 18, 1, 18, 2, Q("1.3677 mm")),
    Sketcher.Constraint("DistanceY", 52, 2, 52, 1, Q("0.4464 mm")),
    Sketcher.Constraint("DistanceY", 60, 2, 60, 1, Q("8.6424 mm")),
    Sketcher.Constraint("DistanceY", 64, 2, 64, 1, Q("4.613 mm")),
    Sketcher.Constraint("DistanceY", 65, 1, 65, 2, Q("0.4464 mm")),
    Sketcher.Constraint("DistanceY", 69, 1, 69, 2, Q("4.613 mm")),
    Sketcher.Constraint("DistanceY", 73, 1, 73, 2, Q("8.6424 mm")),
    Sketcher.Constraint("DistanceX", -1, 1, 1, 3, Q("0.6624 in")),
    Sketcher.Constraint("DistanceY", -1, 1, 1, 3, Q("0.6624 in")),
    Sketcher.Constraint("DistanceX", -1, 1, 3, 3, Q("0.2216 in")),
    Sketcher.Constraint("DistanceX", -1, 1, 13, 3, Q("0.0908 in")),
    Sketcher.Constraint("DistanceX", 15, 3, -1, 1, Q("0.0908 in")),
    Sketcher.Constraint("DistanceX", 25, 3, -1, 1, Q("0.2216 in")),
    Sketcher.Constraint("DistanceY", -1, 1, 25, 3, Q("0.7254 in")),
    Sketcher.Constraint("DistanceX", 27, 3, -1, 1, Q("0.6624 in")),
    Sketcher.Constraint("DistanceY", 29, 3, -1, 1, Q("0.6624 in")),
    Sketcher.Constraint("DistanceX", 40, 3, -1, 1, Q("0.0908 in")),
    Sketcher.Constraint("DistanceX", -1, 1, 42, 3, Q("0.0908 in")),
    Sketcher.Constraint("DistanceY", 49, 3, -1, 1, Q("0.0908 in")),
    Sketcher.Constraint("DistanceY", 51, 3, -1, 1, Q("0.3415 in")),
    Sketcher.Constraint("DistanceY", 55, 3, -1, 1, Q("0.6053 in")),
    Sketcher.Constraint("DistanceY", -1, 1, 63, 3, Q("0.0908 in")),
    Sketcher.Constraint("DistanceY", 66, 3, -1, 1, Q("0.3415 in")),
    Sketcher.Constraint("DistanceY", 68, 3, -1, 1, Q("0.0908 in")),
    Sketcher.Constraint("DistanceY", -1, 1, 70, 3, Q("0.0908 in")),
    Sketcher.Constraint("DistanceY", 78, 3, -1, 1, Q("0.6053 in")),
    Sketcher.Constraint("DistanceY", -1, 1, 0, 2, Q("0.6624 in")),
    Sketcher.Constraint("DistanceX", -1, 1, 1, 2, Q("0.6624 in")),
    Sketcher.Constraint("DistanceX", -1, 1, 13, 1, Q("0.0908 in")),
    Sketcher.Constraint("DistanceX", 25, 2, -1, 1, Q("0.2216 in")),
    Sketcher.Constraint("DistanceY", -1, 1, 27, 2, Q("0.6624 in")),
    Sketcher.Constraint("DistanceX", 29, 2, -1, 1, Q("0.6624 in")),
    Sketcher.Constraint("DistanceX", 34, 1, -1, 1, Q("0.6137 in")),
    Sketcher.Constraint("DistanceY", 35, 2, -1, 1, Q("0.4749 in")),
    Sketcher.Constraint("DistanceX", 40, 1, -1, 1, Q("0.0908 in")),
    Sketcher.Constraint("DistanceY", 46, 1, -1, 1, Q("0.4749 in")),
    Sketcher.Constraint("DistanceX", -1, 1, 47, 2, Q("0.6137 in")),
    Sketcher.Constraint("DistanceY", 51, 2, -1, 1, Q("0.3415 in")),
    Sketcher.Constraint("DistanceY", 54, 2, -1, 1, Q("0.6127 in")),
    Sketcher.Constraint("DistanceY", 55, 1, -1, 1, Q("0.6053 in")),
    Sketcher.Constraint("DistanceY", -1, 1, 63, 1, Q("0.0908 in")),
    Sketcher.Constraint("DistanceY", 65, 2, -1, 1, Q("0.3415 in")),
    Sketcher.Constraint("DistanceY", 68, 1, -1, 1, Q("0.0908 in")),
    Sketcher.Constraint("DistanceY", 77, 2, -1, 1, Q("0.6053 in")),
    Sketcher.Constraint("DistanceY", 78, 1, -1, 1, Q("0.6127 in")),
    Sketcher.Constraint("Distance", 7, Q("0.7625 mm")),
    Sketcher.Constraint("Distance", 12, Q("6.1653 mm")),
    Sketcher.Constraint("Distance", 16, Q("6.1653 mm")),
    Sketcher.Constraint("Distance", 21, Q("0.7625 mm")),
    Sketcher.Constraint("Distance", 35, Q("8.286 mm")),
    Sketcher.Constraint("Distance", 39, Q("3.592 mm")),
    Sketcher.Constraint("Distance", 43, Q("3.592 mm")),
    Sketcher.Constraint("Distance", 47, Q("8.286 mm")),
    Sketcher.Constraint("Distance", 50, Q("3.493 mm")),
    Sketcher.Constraint("Distance", 67, Q("3.493 mm")),
    Sketcher.Constraint("DistanceX", -1, 1, 5, 3, Q("5.6348 mm")),
    Sketcher.Constraint("DistanceY", -1, 1, 5, 3, Q("17.5148 mm")),
    Sketcher.Constraint("DistanceX", -1, 1, 9, 3, Q("9.015 mm")),
    Sketcher.Constraint("DistanceY", -1, 1, 9, 3, Q("15.432 mm")),
    Sketcher.Constraint("DistanceY", -1, 1, 11, 3, Q("14.0643 mm")),
    Sketcher.Constraint("DistanceY", -1, 1, 13, 3, Q("12.4348 mm")),
    Sketcher.Constraint("DistanceX", 17, 3, -1, 1, Q("9.396 mm")),
    Sketcher.Constraint("DistanceY", -1, 1, 17, 3, Q("14.0643 mm")),
    Sketcher.Constraint("DistanceY", -1, 1, 19, 3, Q("15.432 mm")),
    Sketcher.Constraint("DistanceX", 23, 3, -1, 1, Q("5.6348 mm")),
    Sketcher.Constraint("DistanceY", -1, 1, 23, 3, Q("17.5148 mm")),
    Sketcher.Constraint("DistanceX", -1, 1, 32, 3, Q("15.4108 mm")),
    Sketcher.Constraint("DistanceY", 32, 3, -1, 1, Q("18.099 mm")),
    Sketcher.Constraint("DistanceX", 34, 3, -1, 1, Q("15.4108 mm")),
    Sketcher.Constraint("DistanceX", 36, 3, -1, 1, Q("9.1903 mm")),
    Sketcher.Constraint("DistanceX", 38, 3, -1, 1, Q("8.744 mm")),
    Sketcher.Constraint("DistanceY", 40, 3, -1, 1, Q("12.4348 mm")),
    Sketcher.Constraint("DistanceX", -1, 1, 44, 3, Q("8.744 mm")),
    Sketcher.Constraint("DistanceY", 44, 3, -1, 1, Q("11.0774 mm")),
    Sketcher.Constraint("DistanceX", 49, 3, -1, 1, Q("12.4348 mm")),
    Sketcher.Constraint("DistanceX", 51, 3, -1, 1, Q("11.0074 mm")),
    Sketcher.Constraint("DistanceY", 53, 3, -1, 1, Q("9.1203 mm")),
    Sketcher.Constraint("DistanceX", 55, 3, -1, 1, Q("18.084 mm")),
    Sketcher.Constraint("DistanceY", -1, 1, 57, 3, Q("16.0956 mm")),
    Sketcher.Constraint("DistanceX", 59, 3, -1, 1, Q("12.343 mm")),
    Sketcher.Constraint("DistanceY", -1, 1, 61, 3, Q("9.8662 mm")),
    Sketcher.Constraint("DistanceX", -1, 1, 66, 3, Q("11.0074 mm")),
    Sketcher.Constraint("DistanceX", -1, 1, 68, 3, Q("12.4348 mm")),
    Sketcher.Constraint("DistanceX", -1, 1, 72, 3, Q("8.787 mm")),
    Sketcher.Constraint("DistanceY", -1, 1, 72, 3, Q("9.8662 mm")),
    Sketcher.Constraint("DistanceY", -1, 1, 74, 3, Q("18.5086 mm")),
    Sketcher.Constraint("DistanceX", -1, 1, 76, 3, Q("15.556 mm")),
    Sketcher.Constraint("DistanceY", 80, 3, -1, 1, Q("9.1203 mm")),
    Sketcher.Constraint("DistanceX", -1, 1, 5, 2, Q("5.6348 mm")),
    Sketcher.Constraint("DistanceY", -1, 1, 9, 1, Q("15.432 mm")),
    Sketcher.Constraint("DistanceX", -1, 1, 11, 1, Q("10.0246 mm")),
    Sketcher.Constraint("DistanceX", 15, 1, -1, 1, Q("5.665 mm")),
    Sketcher.Constraint("DistanceY", -1, 1, 17, 1, Q("14.0643 mm")),
    Sketcher.Constraint("DistanceX", 19, 1, -1, 1, Q("9.015 mm")),
    Sketcher.Constraint("DistanceX", -1, 1, 32, 1, Q("15.4108 mm")),
    Sketcher.Constraint("DistanceX", 36, 1, -1, 1, Q("9.1903 mm")),
    Sketcher.Constraint("DistanceX", 38, 2, -1, 1, Q("8.205 mm")),
    Sketcher.Constraint("DistanceX", -1, 1, 42, 1, Q("5.665 mm")),
    Sketcher.Constraint("DistanceX", -1, 1, 44, 2, Q("8.744 mm")),
    Sketcher.Constraint("DistanceX", 49, 1, -1, 1, Q("9.0762 mm")),
    Sketcher.Constraint("DistanceX", 57, 1, -1, 1, Q("15.556 mm")),
    Sketcher.Constraint("DistanceY", -1, 1, 59, 1, Q("18.5086 mm")),
    Sketcher.Constraint("DistanceX", 61, 2, -1, 1, Q("11.0322 mm")),
    Sketcher.Constraint("DistanceX", -1, 1, 66, 2, Q("11.5462 mm")),
    Sketcher.Constraint("DistanceX", -1, 1, 70, 1, Q("9.0762 mm")),
    Sketcher.Constraint("DistanceY", -1, 1, 72, 2, Q("9.8662 mm")),
    Sketcher.Constraint("DistanceX", -1, 1, 74, 1, Q("12.343 mm")),
])
pad1 = body.newObject("PartDesign::Pad", "Pad")
pad1.Profile = sketch1
pad1.Length = Q("3.9370079 in")
pad1.Reversed = True

doc.recompute()
